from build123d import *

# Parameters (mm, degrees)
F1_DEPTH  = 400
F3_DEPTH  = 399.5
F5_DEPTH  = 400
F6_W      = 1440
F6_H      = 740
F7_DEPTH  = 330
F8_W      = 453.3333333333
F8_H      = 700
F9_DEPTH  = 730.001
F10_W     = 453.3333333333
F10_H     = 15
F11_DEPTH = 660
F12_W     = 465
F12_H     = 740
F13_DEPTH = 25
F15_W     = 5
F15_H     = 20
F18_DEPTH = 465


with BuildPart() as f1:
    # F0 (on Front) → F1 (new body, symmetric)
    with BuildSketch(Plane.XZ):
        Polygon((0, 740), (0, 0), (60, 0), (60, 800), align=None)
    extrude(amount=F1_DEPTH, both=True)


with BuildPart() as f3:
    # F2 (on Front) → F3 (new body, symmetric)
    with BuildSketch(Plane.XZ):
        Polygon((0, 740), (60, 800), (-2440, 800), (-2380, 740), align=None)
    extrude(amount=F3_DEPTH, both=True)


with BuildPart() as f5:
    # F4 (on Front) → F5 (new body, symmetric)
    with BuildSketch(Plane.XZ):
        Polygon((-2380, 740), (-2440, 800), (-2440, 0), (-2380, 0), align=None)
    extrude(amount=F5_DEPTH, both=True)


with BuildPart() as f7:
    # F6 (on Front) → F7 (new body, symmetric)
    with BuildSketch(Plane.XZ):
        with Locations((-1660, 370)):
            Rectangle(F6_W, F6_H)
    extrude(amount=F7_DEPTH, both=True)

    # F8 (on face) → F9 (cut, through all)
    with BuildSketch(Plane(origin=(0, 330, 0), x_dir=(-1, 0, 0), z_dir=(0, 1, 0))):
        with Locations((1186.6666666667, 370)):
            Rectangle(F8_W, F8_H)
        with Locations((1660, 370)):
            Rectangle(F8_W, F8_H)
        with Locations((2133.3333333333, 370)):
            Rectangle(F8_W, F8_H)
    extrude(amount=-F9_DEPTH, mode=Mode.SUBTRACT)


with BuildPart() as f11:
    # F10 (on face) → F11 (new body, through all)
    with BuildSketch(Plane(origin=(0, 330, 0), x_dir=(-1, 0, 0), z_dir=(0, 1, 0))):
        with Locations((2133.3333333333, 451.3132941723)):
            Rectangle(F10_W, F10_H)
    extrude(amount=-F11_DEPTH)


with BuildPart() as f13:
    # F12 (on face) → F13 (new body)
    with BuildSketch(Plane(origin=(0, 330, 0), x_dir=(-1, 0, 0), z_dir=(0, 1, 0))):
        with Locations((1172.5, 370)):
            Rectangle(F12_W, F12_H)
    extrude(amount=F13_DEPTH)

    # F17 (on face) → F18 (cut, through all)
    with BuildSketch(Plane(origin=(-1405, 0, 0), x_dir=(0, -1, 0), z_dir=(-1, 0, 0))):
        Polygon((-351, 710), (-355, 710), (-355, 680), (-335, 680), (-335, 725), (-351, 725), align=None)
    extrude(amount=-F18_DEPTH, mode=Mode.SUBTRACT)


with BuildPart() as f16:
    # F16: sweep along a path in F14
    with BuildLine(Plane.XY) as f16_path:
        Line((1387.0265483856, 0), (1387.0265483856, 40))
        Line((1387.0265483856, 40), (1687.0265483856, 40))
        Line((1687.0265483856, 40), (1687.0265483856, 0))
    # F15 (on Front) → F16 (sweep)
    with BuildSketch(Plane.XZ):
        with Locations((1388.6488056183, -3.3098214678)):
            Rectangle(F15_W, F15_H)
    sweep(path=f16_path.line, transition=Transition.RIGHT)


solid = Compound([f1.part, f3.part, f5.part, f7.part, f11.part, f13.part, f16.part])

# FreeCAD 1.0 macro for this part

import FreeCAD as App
import Part
import Sketcher

V = App.Vector

doc = App.newDocument("Part")
params = doc.addObject("Spreadsheet::Sheet", "Params")
for row, (alias, value) in enumerate([
    ("sketch1_width", "60 mm"),
    ("sketch1_height", "740 mm"),
    ("sketch1_height2", "800 mm"),
    ("pad1_length", "800 mm"),
    ("sketch2_width", "2500 mm"),
    ("sketch2_width2", "2380 mm"),
    ("pad2_length", "799 mm"),
    ("sketch3_width", "60 mm"),
    ("sketch3_height", "800 mm"),
    ("sketch3_height2", "740 mm"),
    ("pad3_length", "800 mm"),
    ("sketch4_width", "1440 mm"),
    ("sketch4_height", "740 mm"),
    ("pad4_length", "660 mm"),
    ("sketch5_height", "700 mm"),
    ("sketch6_height", "15 mm"),
    ("pad5_length", "660 mm"),
    ("sketch7_width", "465 mm"),
    ("sketch7_height", "740 mm"),
    ("pad6_length", "25 mm"),
    ("sketch8_width", "4 mm"),
    ("sketch8_width2", "20 mm"),
    ("sketch8_height", "30 mm"),
    ("sketch8_height2", "45 mm"),
    ("sketch9_width", "5 mm"),
    ("sketch9_height", "20 mm"),
    ("sketch10_width", "300 mm"),
    ("sketch10_height", "40 mm"),
], start=1):
    params.set(f"A{row}", alias)
    params.set(f"B{row}", "=" + value)
    params.setAlias(f"B{row}", alias)

body = doc.addObject("PartDesign::Body", "Body")

# Sketch on XZ plane
sketch1 = body.newObject("Sketcher::SketchObject", "Sketch")
sketch1.AttachmentSupport = (doc.getObject("XZ_Plane"), [""])
sketch1.MapMode = "FlatFace"
sketch1.addGeometry(Part.LineSegment(V(0, 740, 0), V(0, 0, 0)), False)
sketch1.addGeometry(Part.LineSegment(V(0, 0, 0), V(60, 0, 0)), False)
sketch1.addGeometry(Part.LineSegment(V(60, 0, 0), V(60, 800, 0)), False)
sketch1.addGeometry(Part.LineSegment(V(60, 800, 0), V(0, 740, 0)), False)
sketch1.addConstraint(Sketcher.Constraint("Coincident", 0, 2, 1, 1))
sketch1.addConstraint(Sketcher.Constraint("Coincident", 1, 2, 2, 1))
sketch1.addConstraint(Sketcher.Constraint("Coincident", 2, 2, 3, 1))
sketch1.addConstraint(Sketcher.Constraint("Coincident", 3, 2, 0, 1))
sketch1.addConstraint(Sketcher.Constraint("Vertical", 0))
sketch1.addConstraint(Sketcher.Constraint("Horizontal", 1))
sketch1.addConstraint(Sketcher.Constraint("Vertical", 2))
sketch1.addConstraint(Sketcher.Constraint("Coincident", 0, 2, -1, 1))
sketch1.addConstraint(Sketcher.Constraint("DistanceX", 1, 1, 1, 2, 60.0))
sketch1.addConstraint(Sketcher.Constraint("DistanceY", 0, 2, 0, 1, 740.0))
sketch1.addConstraint(Sketcher.Constraint("DistanceY", 2, 1, 2, 2, 800.0))
sketch1.setExpression("Constraints[8]", "Params.sketch1_width")
sketch1.setExpression("Constraints[9]", "Params.sketch1_height")
sketch1.setExpression("Constraints[10]", "Params.sketch1_height2")
pad1 = body.newObject("PartDesign::Pad", "Pad")
pad1.Profile = sketch1
pad1.setExpression("Length", "Params.pad1_length")
pad1.Midplane = True
body2 = doc.addObject("PartDesign::Body", "Body001")

# Sketch on XZ plane
sketch2 = body2.newObject("Sketcher::SketchObject", "Sketch001")
sketch2.AttachmentSupport = (doc.getObject("XZ_Plane001"), [""])
sketch2.MapMode = "FlatFace"
sketch2.addGeometry(Part.LineSegment(V(0, 740, 0), V(60, 800, 0)), False)
sketch2.addGeometry(Part.LineSegment(V(60, 800, 0), V(-2440, 800, 0)), False)
sketch2.addGeometry(Part.LineSegment(V(-2440, 800, 0), V(-2380, 740, 0)), False)
sketch2.addGeometry(Part.LineSegment(V(-2380, 740, 0), V(0, 740, 0)), False)
sketch2.addConstraint(Sketcher.Constraint("Coincident", 0, 2, 1, 1))
sketch2.addConstraint(Sketcher.Constraint("Coincident", 1, 2, 2, 1))
sketch2.addConstraint(Sketcher.Constraint("Coincident", 2, 2, 3, 1))
sketch2.addConstraint(Sketcher.Constraint("Coincident", 3, 2, 0, 1))
sketch2.addConstraint(Sketcher.Constraint("Horizontal", 1))
sketch2.addConstraint(Sketcher.Constraint("Horizontal", 3))
sketch2.addConstraint(Sketcher.Constraint("PointOnObject", 3, 2, -2))
sketch2.addConstraint(Sketcher.Constraint("Perpendicular", 0, 2))
sketch2.addConstraint(Sketcher.Constraint("Equal", 0, 2))
sketch2.addConstraint(Sketcher.Constraint("DistanceX", 1, 2, 1, 1, 2500.0))
sketch2.addConstraint(Sketcher.Constraint("DistanceX", 3, 1, 3, 2, 2380.0))
sketch2.addConstraint(Sketcher.Constraint("DistanceY", -1, 1, 0, 2, 800.0))
sketch2.setExpression("Constraints[9]", "Params.sketch2_width")
sketch2.setExpression("Constraints[10]", "Params.sketch2_width2")
pad2 = body2.newObject("PartDesign::Pad", "Pad001")
pad2.Profile = sketch2
pad2.setExpression("Length", "Params.pad2_length")
pad2.Midplane = True
body3 = doc.addObject("PartDesign::Body", "Body002")

# Sketch on XZ plane
sketch3 = body3.newObject("Sketcher::SketchObject", "Sketch002")
sketch3.AttachmentSupport = (doc.getObject("XZ_Plane002"), [""])
sketch3.MapMode = "FlatFace"
sketch3.addGeometry(Part.LineSegment(V(-2380, 740, 0), V(-2440, 800, 0)), False)
sketch3.addGeometry(Part.LineSegment(V(-2440, 800, 0), V(-2440, 0, 0)), False)
sketch3.addGeometry(Part.LineSegment(V(-2440, 0, 0), V(-2380, 0, 0)), False)
sketch3.addGeometry(Part.LineSegment(V(-2380, 0, 0), V(-2380, 740, 0)), False)
sketch3.addConstraint(Sketcher.Constraint("Coincident", 0, 2, 1, 1))
sketch3.addConstraint(Sketcher.Constraint("Coincident", 1, 2, 2, 1))
sketch3.addConstraint(Sketcher.Constraint("Coincident", 2, 2, 3, 1))
sketch3.addConstraint(Sketcher.Constraint("Coincident", 3, 2, 0, 1))
sketch3.addConstraint(Sketcher.Constraint("Vertical", 1))
sketch3.addConstraint(Sketcher.Constraint("Horizontal", 2))
sketch3.addConstraint(Sketcher.Constraint("Vertical", 3))
sketch3.addConstraint(Sketcher.Constraint("PointOnObject", 1, 2, -1))
sketch3.addConstraint(Sketcher.Constraint("DistanceX", 2, 1, 2, 2, 60.0))
sketch3.addConstraint(Sketcher.Constraint("DistanceY", 1, 2, 1, 1, 800.0))
sketch3.addConstraint(Sketcher.Constraint("DistanceY", 3, 1, 3, 2, 740.0))
sketch3.addConstraint(Sketcher.Constraint("DistanceX", 0, 2, -1, 1, 2440.0))
sketch3.setExpression("Constraints[8]", "Params.sketch3_width")
sketch3.setExpression("Constraints[9]", "Params.sketch3_height")
sketch3.setExpression("Constraints[10]", "Params.sketch3_height2")
pad3 = body3.newObject("PartDesign::Pad", "Pad002")
pad3.Profile = sketch3
pad3.setExpression("Length", "Params.pad3_length")
pad3.Midplane = True
body4 = doc.addObject("PartDesign::Body", "Body003")

# Sketch on XZ plane
sketch4 = body4.newObject("Sketcher::SketchObject", "Sketch003")
sketch4.AttachmentSupport = (doc.getObject("XZ_Plane003"), [""])
sketch4.MapMode = "FlatFace"
sketch4.addGeometry(Part.LineSegment(V(-2380, 740, 0), V(-2380, 0, 0)), False)
sketch4.addGeometry(Part.LineSegment(V(-2380, 0, 0), V(-940, 0, 0)), False)
sketch4.addGeometry(Part.LineSegment(V(-940, 0, 0), V(-940, 740, 0)), False)
sketch4.addGeometry(Part.LineSegment(V(-940, 740, 0), V(-2380, 740, 0)), False)
sketch4.addConstraint(Sketcher.Constraint("Coincident", 0, 2, 1, 1))
sketch4.addConstraint(Sketcher.Constraint("Coincident", 1, 2, 2, 1))
sketch4.addConstraint(Sketcher.Constraint("Coincident", 2, 2, 3, 1))
sketch4.addConstraint(Sketcher.Constraint("Coincident", 3, 2, 0, 1))
sketch4.addConstraint(Sketcher.Constraint("Vertical", 0))
sketch4.addConstraint(Sketcher.Constraint("Horizontal", 1))
sketch4.addConstraint(Sketcher.Constraint("Vertical", 2))
sketch4.addConstraint(Sketcher.Constraint("Horizontal", 3))
sketch4.addConstraint(Sketcher.Constraint("PointOnObject", 0, 2, -1))
sketch4.addConstraint(Sketcher.Constraint("DistanceX", 1, 1, 1, 2, 1440.0))
sketch4.addConstraint(Sketcher.Constraint("DistanceY", 0, 2, 0, 1, 740.0))
sketch4.addConstraint(Sketcher.Constraint("DistanceX", 0, 2, -1, 1, 2380.0))
sketch4.setExpression("Constraints[9]", "Params.sketch4_width")
sketch4.setExpression("Constraints[10]", "Params.sketch4_height")
pad4 = body4.newObject("PartDesign::Pad", "Pad003")
pad4.Profile = sketch4
pad4.setExpression("Length", "Params.pad4_length")
pad4.Midplane = True

# Sketch on XZ plane
sketch5 = body4.newObject("Sketcher::SketchObject", "Sketch004")
sketch5.AttachmentSupport = (doc.getObject("XZ_Plane003"), [""])
sketch5.MapMode = "FlatFace"
sketch5.AttachmentOffset = App.Placement(V(0, 0, -330), App.Rotation())
sketch5.addGeometry(Part.LineSegment(V(-960, 720, 0), V(-960, 20, 0)), False)
sketch5.addGeometry(Part.LineSegment(V(-960, 20, 0), V(-1413, 20, 0)), False)
sketch5.addGeometry(Part.LineSegment(V(-1413, 20, 0), V(-1413, 720, 0)), False)
sketch5.addGeometry(Part.LineSegment(V(-1413, 720, 0), V(-960, 720, 0)), False)
sketch5.addGeometry(Part.LineSegment(V(-1433, 720, 0), V(-1433, 20, 0)), False)
sketch5.addGeometry(Part.LineSegment(V(-1433, 20, 0), V(-1887, 20, 0)), False)
sketch5.addGeometry(Part.LineSegment(V(-1887, 20, 0), V(-1887, 720, 0)), False)
sketch5.addGeometry(Part.LineSegment(V(-1887, 720, 0), V(-1433, 720, 0)), False)
sketch5.addGeometry(Part.LineSegment(V(-1907, 720, 0), V(-1907, 20, 0)), False)
sketch5.addGeometry(Part.LineSegment(V(-1907, 20, 0), V(-2360, 20, 0)), False)
sketch5.addGeometry(Part.LineSegment(V(-2360, 20, 0), V(-2360, 720, 0)), False)
sketch5.addGeometry(Part.LineSegment(V(-2360, 720, 0), V(-1907, 720, 0)), False)
sketch5.addConstraint(Sketcher.Constraint("Coincident", 0, 2, 1, 1))
sketch5.addConstraint(Sketcher.Constraint("Coincident", 1, 2, 2, 1))
sketch5.addConstraint(Sketcher.Constraint("Coincident", 2, 2, 3, 1))
sketch5.addConstraint(Sketcher.Constraint("Coincident", 3, 2, 0, 1))
sketch5.addConstraint(Sketcher.Constraint("Coincident", 4, 2, 5, 1))
sketch5.addConstraint(Sketcher.Constraint("Coincident", 5, 2, 6, 1))
sketch5.addConstraint(Sketcher.Constraint("Coincident", 6, 2, 7, 1))
sketch5.addConstraint(Sketcher.Constraint("Coincident", 7, 2, 4, 1))
sketch5.addConstraint(Sketcher.Constraint("Coincident", 8, 2, 9, 1))
sketch5.addConstraint(Sketcher.Constraint("Coincident", 9, 2, 10, 1))
sketch5.addConstraint(Sketcher.Constraint("Coincident", 10, 2, 11, 1))
sketch5.addConstraint(Sketcher.Constraint("Coincident", 11, 2, 8, 1))
sketch5.addConstraint(Sketcher.Constraint("Vertical", 0))
sketch5.addConstraint(Sketcher.Constraint("Horizontal", 1))
sketch5.addConstraint(Sketcher.Constraint("Vertical", 2))
sketch5.addConstraint(Sketcher.Constraint("Horizontal", 3))
sketch5.addConstraint(Sketcher.Constraint("Vertical", 4))
sketch5.addConstraint(Sketcher.Constraint("Horizontal", 5))
sketch5.addConstraint(Sketcher.Constraint("Vertical", 6))
sketch5.addConstraint(Sketcher.Constraint("Horizontal", 7))
sketch5.addConstraint(Sketcher.Constraint("Vertical", 8))
sketch5.addConstraint(Sketcher.Constraint("Horizontal", 9))
sketch5.addConstraint(Sketcher.Constraint("Vertical", 10))
sketch5.addConstraint(Sketcher.Constraint("Horizontal", 11))
sketch5.addConstraint(Sketcher.Constraint("Horizontal", 1, 2, 4, 2))
sketch5.addConstraint(Sketcher.Constraint("Horizontal", 3, 2, 6, 2))
sketch5.addConstraint(Sketcher.Constraint("Horizontal", 5, 2, 8, 2))
sketch5.addConstraint(Sketcher.Constraint("Horizontal", 7, 2, 10, 2))
sketch5.addConstraint(Sketcher.Constraint("Equal", 3, 5))
sketch5.addConstraint(Sketcher.Constraint("Equal", 7, 9))
sketch5.addConstraint(Sketcher.Constraint("DistanceY", 0, 2, 0, 1, 700.0))
sketch5.addConstraint(Sketcher.Constraint("DistanceX", 0, 2, -1, 1, 960.0))
sketch5.addConstraint(Sketcher.Constraint("DistanceY", -1, 1, 0, 2, 20.0))
sketch5.addConstraint(Sketcher.Constraint("DistanceX", 9, 2, -1, 1, 2360.0))
sketch5.addConstraint(Sketcher.Constraint("DistanceX", 4, 2, 1, 2, 20.0))
sketch5.addConstraint(Sketcher.Constraint("DistanceX", 8, 2, 5, 2, 20.0))
sketch5.setExpression("Constraints[30]", "Params.sketch5_height")
pocket1 = body4.newObject("PartDesign::Pocket", "Pocket")
pocket1.Profile = sketch5
pocket1.Type = "ThroughAll"
pocket1.Reversed = True
body5 = doc.addObject("PartDesign::Body", "Body004")

# Sketch on XZ plane
sketch6 = body5.newObject("Sketcher::SketchObject", "Sketch005")
sketch6.AttachmentSupport = (doc.getObject("XZ_Plane004"), [""])
sketch6.MapMode = "FlatFace"
sketch6.AttachmentOffset = App.Placement(V(0, 0, -330), App.Rotation())
sketch6.addGeometry(Part.LineSegment(V(-1907, 459, 0), V(-1907, 444, 0)), False)
sketch6.addGeometry(Part.LineSegment(V(-1907, 444, 0), V(-2360, 444, 0)), False)
sketch6.addGeometry(Part.LineSegment(V(-2360, 444, 0), V(-2360, 459, 0)), False)
sketch6.addGeometry(Part.LineSegment(V(-2360, 459, 0), V(-1907, 459, 0)), False)
sketch6.addConstraint(Sketcher.Constraint("Coincident", 0, 2, 1, 1))
sketch6.addConstraint(Sketcher.Constraint("Coincident", 1, 2, 2, 1))
sketch6.addConstraint(Sketcher.Constraint("Coincident", 2, 2, 3, 1))
sketch6.addConstraint(Sketcher.Constraint("Coincident", 3, 2, 0, 1))
sketch6.addConstraint(Sketcher.Constraint("Vertical", 0))
sketch6.addConstraint(Sketcher.Constraint("Horizontal", 1))
sketch6.addConstraint(Sketcher.Constraint("Vertical", 2))
sketch6.addConstraint(Sketcher.Constraint("Horizontal", 3))
sketch6.addConstraint(Sketcher.Constraint("DistanceY", 0, 2, 0, 1, 15.0))
sketch6.addConstraint(Sketcher.Constraint("DistanceX", 1, 2, -1, 1, 2360.0))
sketch6.addConstraint(Sketcher.Constraint("DistanceX", 1, 2, 1, 1, 453.333333))
sketch6.addConstraint(Sketcher.Constraint("DistanceY", -1, 1, 0, 2, 443.813294))
sketch6.setExpression("Constraints[8]", "Params.sketch6_height")
pad5 = body5.newObject("PartDesign::Pad", "Pad004")
pad5.Profile = sketch6
pad5.setExpression("Length", "Params.pad5_length")
body6 = doc.addObject("PartDesign::Body", "Body005")

# Sketch on XZ plane
sketch7 = body6.newObject("Sketcher::SketchObject", "Sketch006")
sketch7.AttachmentSupport = (doc.getObject("XZ_Plane005"), [""])
sketch7.MapMode = "FlatFace"
sketch7.AttachmentOffset = App.Placement(V(0, 0, -330), App.Rotation())
sketch7.addGeometry(Part.LineSegment(V(-940, 740, 0), V(-940, 0, 0)), False)
sketch7.addGeometry(Part.LineSegment(V(-940, 0, 0), V(-1405, 0, 0)), False)
sketch7.addGeometry(Part.LineSegment(V(-1405, 0, 0), V(-1405, 740, 0)), False)
sketch7.addGeometry(Part.LineSegment(V(-1405, 740, 0), V(-940, 740, 0)), False)
sketch7.addConstraint(Sketcher.Constraint("Coincident", 0, 2, 1, 1))
sketch7.addConstraint(Sketcher.Constraint("Coincident", 1, 2, 2, 1))
sketch7.addConstraint(Sketcher.Constraint("Coincident", 2, 2, 3, 1))
sketch7.addConstraint(Sketcher.Constraint("Coincident", 3, 2, 0, 1))
sketch7.addConstraint(Sketcher.Constraint("Vertical", 0))
sketch7.addConstraint(Sketcher.Constraint("Horizontal", 1))
sketch7.addConstraint(Sketcher.Constraint("Vertical", 2))
sketch7.addConstraint(Sketcher.Constraint("Horizontal", 3))
sketch7.addConstraint(Sketcher.Constraint("PointOnObject", 0, 2, -1))
sketch7.addConstraint(Sketcher.Constraint("DistanceX", 1, 2, 1, 1, 465.0))
sketch7.addConstraint(Sketcher.Constraint("DistanceY", 0, 2, 0, 1, 740.0))
sketch7.addConstraint(Sketcher.Constraint("DistanceX", 0, 2, -1, 1, 940.0))
sketch7.setExpression("Constraints[9]", "Params.sketch7_width")
sketch7.setExpression("Constraints[10]", "Params.sketch7_height")
pad6 = body6.newObject("PartDesign::Pad", "Pad005")
pad6.Profile = sketch7
pad6.setExpression("Length", "Params.pad6_length")
pad6.Reversed = True

# Sketch on YZ plane
sketch8 = body6.newObject("Sketcher::SketchObject", "Sketch007")
sketch8.AttachmentSupport = (doc.getObject("YZ_Plane005"), [""])
sketch8.MapMode = "FlatFace"
sketch8.AttachmentOffset = App.Placement(V(0, 0, -1405), App.Rotation())
sketch8.addGeometry(Part.LineSegment(V(351, 710, 0), V(355, 710, 0)), False)
sketch8.addGeometry(Part.LineSegment(V(355, 710, 0), V(355, 680, 0)), False)
sketch8.addGeometry(Part.LineSegment(V(355, 680, 0), V(335, 680, 0)), False)
sketch8.addGeometry(Part.LineSegment(V(335, 680, 0), V(335, 725, 0)), False)
sketch8.addGeometry(Part.LineSegment(V(335, 725, 0), V(351, 725, 0)), False)
sketch8.addGeometry(Part.LineSegment(V(351, 725, 0), V(351, 710, 0)), False)
sketch8.addConstraint(Sketcher.Constraint("Coincident", 0, 2, 1, 1))
sketch8.addConstraint(Sketcher.Constraint("Coincident", 1, 2, 2, 1))
sketch8.addConstraint(Sketcher.Constraint("Coincident", 2, 2, 3, 1))
sketch8.addConstraint(Sketcher.Constraint("Coincident", 3, 2, 4, 1))
sketch8.addConstraint(Sketcher.Constraint("Coincident", 4, 2, 5, 1))
sketch8.addConstraint(Sketcher.Constraint("Coincident", 5, 2, 0, 1))
sketch8.addConstraint(Sketcher.Constraint("Horizontal", 0))
sketch8.addConstraint(Sketcher.Constraint("Vertical", 1))
sketch8.addConstraint(Sketcher.Constraint("Horizontal", 2))
sketch8.addConstraint(Sketcher.Constraint("Vertical", 3))
sketch8.addConstraint(Sketcher.Constraint("Horizontal", 4))
sketch8.addConstraint(Sketcher.Constraint("Vertical", 5))
sketch8.addConstraint(Sketcher.Constraint("DistanceX", 0, 1, 0, 2, 4.0))
sketch8.addConstraint(Sketcher.Constraint("DistanceX", 2, 2, 2, 1, 20.0))
sketch8.addConstraint(Sketcher.Constraint("DistanceY", 1, 2, 1, 1, 30.0))
sketch8.addConstraint(Sketcher.Constraint("DistanceY", 3, 1, 3, 2, 45.0))
sketch8.addConstraint(Sketcher.Constraint("DistanceX", -1, 1, 0, 2, 355.0))
sketch8.addConstraint(Sketcher.Constraint("DistanceY", -1, 1, 0, 2, 710.0))
sketch8.setExpression("Constraints[12]", "Params.sketch8_width")
sketch8.setExpression("Constraints[13]", "Params.sketch8_width2")
sketch8.setExpression("Constraints[14]", "Params.sketch8_height")
sketch8.setExpression("Constraints[15]", "Params.sketch8_height2")
pocket2 = body6.newObject("PartDesign::Pocket", "Pocket001")
pocket2.Profile = sketch8
pocket2.Type = "ThroughAll"
pocket2.Reversed = True
body7 = doc.addObject("PartDesign::Body", "Body006")

# Sketch on XZ plane
sketch9 = body7.newObject("Sketcher::SketchObject", "Sketch008")
sketch9.AttachmentSupport = (doc.getObject("XZ_Plane006"), [""])
sketch9.MapMode = "FlatFace"
sketch9.addGeometry(Part.LineSegment(V(1386, 7, 0), V(1386, -13, 0)), False)
sketch9.addGeometry(Part.LineSegment(V(1386, -13, 0), V(1391, -13, 0)), False)
sketch9.addGeometry(Part.LineSegment(V(1391, -13, 0), V(1391, 7, 0)), False)
sketch9.addGeometry(Part.LineSegment(V(1391, 7, 0), V(1386, 7, 0)), False)
sketch9.addConstraint(Sketcher.Constraint("Coincident", 0, 2, 1, 1))
sketch9.addConstraint(Sketcher.Constraint("Coincident", 1, 2, 2, 1))
sketch9.addConstraint(Sketcher.Constraint("Coincident", 2, 2, 3, 1))
sketch9.addConstraint(Sketcher.Constraint("Coincident", 3, 2, 0, 1))
sketch9.addConstraint(Sketcher.Constraint("Vertical", 0))
sketch9.addConstraint(Sketcher.Constraint("Horizontal", 1))
sketch9.addConstraint(Sketcher.Constraint("Vertical", 2))
sketch9.addConstraint(Sketcher.Constraint("Horizontal", 3))
sketch9.addConstraint(Sketcher.Constraint("DistanceX", 1, 1, 1, 2, 5.0))
sketch9.addConstraint(Sketcher.Constraint("DistanceY", 0, 2, 0, 1, 20.0))
sketch9.addConstraint(Sketcher.Constraint("DistanceY", 0, 2, -1, 1, 13.309821))
sketch9.addConstraint(Sketcher.Constraint("DistanceX", -1, 1, 0, 2, 1386.148806))
sketch9.setExpression("Constraints[8]", "Params.sketch9_width")
sketch9.setExpression("Constraints[9]", "Params.sketch9_height")

# Sketch on XY plane
sketch10 = body7.newObject("Sketcher::SketchObject", "Sketch009")
sketch10.AttachmentSupport = (doc.getObject("XY_Plane006"), [""])
sketch10.MapMode = "FlatFace"
sketch10.addGeometry(Part.LineSegment(V(1387, 0, 0), V(1387, 40, 0)), False)
sketch10.addGeometry(Part.LineSegment(V(1387, 40, 0), V(1687, 40, 0)), False)
sketch10.addGeometry(Part.LineSegment(V(1687, 40, 0), V(1687, 0, 0)), False)
sketch10.addConstraint(Sketcher.Constraint("Coincident", 0, 2, 1, 1))
sketch10.addConstraint(Sketcher.Constraint("Coincident", 1, 2, 2, 1))
sketch10.addConstraint(Sketcher.Constraint("Vertical", 0))
sketch10.addConstraint(Sketcher.Constraint("Horizontal", 1))
sketch10.addConstraint(Sketcher.Constraint("Vertical", 2))
sketch10.addConstraint(Sketcher.Constraint("PointOnObject", 0, 1, -1))
sketch10.addConstraint(Sketcher.Constraint("PointOnObject", 2, 2, -1))
sketch10.addConstraint(Sketcher.Constraint("DistanceX", 1, 1, 1, 2, 300.0))
sketch10.addConstraint(Sketcher.Constraint("DistanceY", 0, 1, 0, 2, 40.0))
sketch10.addConstraint(Sketcher.Constraint("DistanceX", -1, 1, 0, 1, 1387.026548))
sketch10.setExpression("Constraints[7]", "Params.sketch10_width")
sketch10.setExpression("Constraints[8]", "Params.sketch10_height")
doc.recompute()

additivepipe = body7.newObject("PartDesign::AdditivePipe", "AdditivePipe")
additivepipe.Profile = sketch9
additivepipe.Spine = (sketch10, ["Edge1", "Edge2", "Edge3"])
additivepipe.Transition = "Right corner"

doc.recompute()
